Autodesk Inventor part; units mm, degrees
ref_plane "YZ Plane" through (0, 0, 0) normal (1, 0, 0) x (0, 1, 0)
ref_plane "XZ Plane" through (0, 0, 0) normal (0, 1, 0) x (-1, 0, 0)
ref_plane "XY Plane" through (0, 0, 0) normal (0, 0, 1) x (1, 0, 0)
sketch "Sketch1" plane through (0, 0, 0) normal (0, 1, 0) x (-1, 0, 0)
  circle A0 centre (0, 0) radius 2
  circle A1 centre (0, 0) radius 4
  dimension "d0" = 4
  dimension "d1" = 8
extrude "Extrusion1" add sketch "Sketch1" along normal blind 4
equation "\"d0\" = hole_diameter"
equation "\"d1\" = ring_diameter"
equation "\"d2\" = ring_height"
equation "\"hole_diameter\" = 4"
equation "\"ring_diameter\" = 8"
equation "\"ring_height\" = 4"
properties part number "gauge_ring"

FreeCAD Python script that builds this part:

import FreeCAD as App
import Part
import Sketcher

V = App.Vector

doc = App.newDocument("Part")
body = doc.addObject("PartDesign::Body", "Body")

# Sketch on XZ plane
sketch1 = body.newObject("Sketcher::SketchObject", "Sketch")
sketch1.AttachmentSupport = (doc.getObject("XZ_Plane"), [""])
sketch1.MapMode = "FlatFace"
sketch1.addGeometry([
    Part.Circle(V(0, 0, 0), V(0, 0, 1), 4),
    Part.Circle(V(0, 0, 0), V(0, 0, 1), 2),
], False)
sketch1.addConstraint([
    Sketcher.Constraint("Coincident", 0, 3, -1, 1),
    Sketcher.Constraint("Coincident", 1, 3, -1, 1),
    Sketcher.Constraint("Diameter", 0, 8.0),
    Sketcher.Constraint("Diameter", 1, 4.0),
])
pad1 = body.newObject("PartDesign::Pad", "Pad")
pad1.Profile = sketch1
pad1.Length = 4
pad1.Reversed = True

doc.recompute()
